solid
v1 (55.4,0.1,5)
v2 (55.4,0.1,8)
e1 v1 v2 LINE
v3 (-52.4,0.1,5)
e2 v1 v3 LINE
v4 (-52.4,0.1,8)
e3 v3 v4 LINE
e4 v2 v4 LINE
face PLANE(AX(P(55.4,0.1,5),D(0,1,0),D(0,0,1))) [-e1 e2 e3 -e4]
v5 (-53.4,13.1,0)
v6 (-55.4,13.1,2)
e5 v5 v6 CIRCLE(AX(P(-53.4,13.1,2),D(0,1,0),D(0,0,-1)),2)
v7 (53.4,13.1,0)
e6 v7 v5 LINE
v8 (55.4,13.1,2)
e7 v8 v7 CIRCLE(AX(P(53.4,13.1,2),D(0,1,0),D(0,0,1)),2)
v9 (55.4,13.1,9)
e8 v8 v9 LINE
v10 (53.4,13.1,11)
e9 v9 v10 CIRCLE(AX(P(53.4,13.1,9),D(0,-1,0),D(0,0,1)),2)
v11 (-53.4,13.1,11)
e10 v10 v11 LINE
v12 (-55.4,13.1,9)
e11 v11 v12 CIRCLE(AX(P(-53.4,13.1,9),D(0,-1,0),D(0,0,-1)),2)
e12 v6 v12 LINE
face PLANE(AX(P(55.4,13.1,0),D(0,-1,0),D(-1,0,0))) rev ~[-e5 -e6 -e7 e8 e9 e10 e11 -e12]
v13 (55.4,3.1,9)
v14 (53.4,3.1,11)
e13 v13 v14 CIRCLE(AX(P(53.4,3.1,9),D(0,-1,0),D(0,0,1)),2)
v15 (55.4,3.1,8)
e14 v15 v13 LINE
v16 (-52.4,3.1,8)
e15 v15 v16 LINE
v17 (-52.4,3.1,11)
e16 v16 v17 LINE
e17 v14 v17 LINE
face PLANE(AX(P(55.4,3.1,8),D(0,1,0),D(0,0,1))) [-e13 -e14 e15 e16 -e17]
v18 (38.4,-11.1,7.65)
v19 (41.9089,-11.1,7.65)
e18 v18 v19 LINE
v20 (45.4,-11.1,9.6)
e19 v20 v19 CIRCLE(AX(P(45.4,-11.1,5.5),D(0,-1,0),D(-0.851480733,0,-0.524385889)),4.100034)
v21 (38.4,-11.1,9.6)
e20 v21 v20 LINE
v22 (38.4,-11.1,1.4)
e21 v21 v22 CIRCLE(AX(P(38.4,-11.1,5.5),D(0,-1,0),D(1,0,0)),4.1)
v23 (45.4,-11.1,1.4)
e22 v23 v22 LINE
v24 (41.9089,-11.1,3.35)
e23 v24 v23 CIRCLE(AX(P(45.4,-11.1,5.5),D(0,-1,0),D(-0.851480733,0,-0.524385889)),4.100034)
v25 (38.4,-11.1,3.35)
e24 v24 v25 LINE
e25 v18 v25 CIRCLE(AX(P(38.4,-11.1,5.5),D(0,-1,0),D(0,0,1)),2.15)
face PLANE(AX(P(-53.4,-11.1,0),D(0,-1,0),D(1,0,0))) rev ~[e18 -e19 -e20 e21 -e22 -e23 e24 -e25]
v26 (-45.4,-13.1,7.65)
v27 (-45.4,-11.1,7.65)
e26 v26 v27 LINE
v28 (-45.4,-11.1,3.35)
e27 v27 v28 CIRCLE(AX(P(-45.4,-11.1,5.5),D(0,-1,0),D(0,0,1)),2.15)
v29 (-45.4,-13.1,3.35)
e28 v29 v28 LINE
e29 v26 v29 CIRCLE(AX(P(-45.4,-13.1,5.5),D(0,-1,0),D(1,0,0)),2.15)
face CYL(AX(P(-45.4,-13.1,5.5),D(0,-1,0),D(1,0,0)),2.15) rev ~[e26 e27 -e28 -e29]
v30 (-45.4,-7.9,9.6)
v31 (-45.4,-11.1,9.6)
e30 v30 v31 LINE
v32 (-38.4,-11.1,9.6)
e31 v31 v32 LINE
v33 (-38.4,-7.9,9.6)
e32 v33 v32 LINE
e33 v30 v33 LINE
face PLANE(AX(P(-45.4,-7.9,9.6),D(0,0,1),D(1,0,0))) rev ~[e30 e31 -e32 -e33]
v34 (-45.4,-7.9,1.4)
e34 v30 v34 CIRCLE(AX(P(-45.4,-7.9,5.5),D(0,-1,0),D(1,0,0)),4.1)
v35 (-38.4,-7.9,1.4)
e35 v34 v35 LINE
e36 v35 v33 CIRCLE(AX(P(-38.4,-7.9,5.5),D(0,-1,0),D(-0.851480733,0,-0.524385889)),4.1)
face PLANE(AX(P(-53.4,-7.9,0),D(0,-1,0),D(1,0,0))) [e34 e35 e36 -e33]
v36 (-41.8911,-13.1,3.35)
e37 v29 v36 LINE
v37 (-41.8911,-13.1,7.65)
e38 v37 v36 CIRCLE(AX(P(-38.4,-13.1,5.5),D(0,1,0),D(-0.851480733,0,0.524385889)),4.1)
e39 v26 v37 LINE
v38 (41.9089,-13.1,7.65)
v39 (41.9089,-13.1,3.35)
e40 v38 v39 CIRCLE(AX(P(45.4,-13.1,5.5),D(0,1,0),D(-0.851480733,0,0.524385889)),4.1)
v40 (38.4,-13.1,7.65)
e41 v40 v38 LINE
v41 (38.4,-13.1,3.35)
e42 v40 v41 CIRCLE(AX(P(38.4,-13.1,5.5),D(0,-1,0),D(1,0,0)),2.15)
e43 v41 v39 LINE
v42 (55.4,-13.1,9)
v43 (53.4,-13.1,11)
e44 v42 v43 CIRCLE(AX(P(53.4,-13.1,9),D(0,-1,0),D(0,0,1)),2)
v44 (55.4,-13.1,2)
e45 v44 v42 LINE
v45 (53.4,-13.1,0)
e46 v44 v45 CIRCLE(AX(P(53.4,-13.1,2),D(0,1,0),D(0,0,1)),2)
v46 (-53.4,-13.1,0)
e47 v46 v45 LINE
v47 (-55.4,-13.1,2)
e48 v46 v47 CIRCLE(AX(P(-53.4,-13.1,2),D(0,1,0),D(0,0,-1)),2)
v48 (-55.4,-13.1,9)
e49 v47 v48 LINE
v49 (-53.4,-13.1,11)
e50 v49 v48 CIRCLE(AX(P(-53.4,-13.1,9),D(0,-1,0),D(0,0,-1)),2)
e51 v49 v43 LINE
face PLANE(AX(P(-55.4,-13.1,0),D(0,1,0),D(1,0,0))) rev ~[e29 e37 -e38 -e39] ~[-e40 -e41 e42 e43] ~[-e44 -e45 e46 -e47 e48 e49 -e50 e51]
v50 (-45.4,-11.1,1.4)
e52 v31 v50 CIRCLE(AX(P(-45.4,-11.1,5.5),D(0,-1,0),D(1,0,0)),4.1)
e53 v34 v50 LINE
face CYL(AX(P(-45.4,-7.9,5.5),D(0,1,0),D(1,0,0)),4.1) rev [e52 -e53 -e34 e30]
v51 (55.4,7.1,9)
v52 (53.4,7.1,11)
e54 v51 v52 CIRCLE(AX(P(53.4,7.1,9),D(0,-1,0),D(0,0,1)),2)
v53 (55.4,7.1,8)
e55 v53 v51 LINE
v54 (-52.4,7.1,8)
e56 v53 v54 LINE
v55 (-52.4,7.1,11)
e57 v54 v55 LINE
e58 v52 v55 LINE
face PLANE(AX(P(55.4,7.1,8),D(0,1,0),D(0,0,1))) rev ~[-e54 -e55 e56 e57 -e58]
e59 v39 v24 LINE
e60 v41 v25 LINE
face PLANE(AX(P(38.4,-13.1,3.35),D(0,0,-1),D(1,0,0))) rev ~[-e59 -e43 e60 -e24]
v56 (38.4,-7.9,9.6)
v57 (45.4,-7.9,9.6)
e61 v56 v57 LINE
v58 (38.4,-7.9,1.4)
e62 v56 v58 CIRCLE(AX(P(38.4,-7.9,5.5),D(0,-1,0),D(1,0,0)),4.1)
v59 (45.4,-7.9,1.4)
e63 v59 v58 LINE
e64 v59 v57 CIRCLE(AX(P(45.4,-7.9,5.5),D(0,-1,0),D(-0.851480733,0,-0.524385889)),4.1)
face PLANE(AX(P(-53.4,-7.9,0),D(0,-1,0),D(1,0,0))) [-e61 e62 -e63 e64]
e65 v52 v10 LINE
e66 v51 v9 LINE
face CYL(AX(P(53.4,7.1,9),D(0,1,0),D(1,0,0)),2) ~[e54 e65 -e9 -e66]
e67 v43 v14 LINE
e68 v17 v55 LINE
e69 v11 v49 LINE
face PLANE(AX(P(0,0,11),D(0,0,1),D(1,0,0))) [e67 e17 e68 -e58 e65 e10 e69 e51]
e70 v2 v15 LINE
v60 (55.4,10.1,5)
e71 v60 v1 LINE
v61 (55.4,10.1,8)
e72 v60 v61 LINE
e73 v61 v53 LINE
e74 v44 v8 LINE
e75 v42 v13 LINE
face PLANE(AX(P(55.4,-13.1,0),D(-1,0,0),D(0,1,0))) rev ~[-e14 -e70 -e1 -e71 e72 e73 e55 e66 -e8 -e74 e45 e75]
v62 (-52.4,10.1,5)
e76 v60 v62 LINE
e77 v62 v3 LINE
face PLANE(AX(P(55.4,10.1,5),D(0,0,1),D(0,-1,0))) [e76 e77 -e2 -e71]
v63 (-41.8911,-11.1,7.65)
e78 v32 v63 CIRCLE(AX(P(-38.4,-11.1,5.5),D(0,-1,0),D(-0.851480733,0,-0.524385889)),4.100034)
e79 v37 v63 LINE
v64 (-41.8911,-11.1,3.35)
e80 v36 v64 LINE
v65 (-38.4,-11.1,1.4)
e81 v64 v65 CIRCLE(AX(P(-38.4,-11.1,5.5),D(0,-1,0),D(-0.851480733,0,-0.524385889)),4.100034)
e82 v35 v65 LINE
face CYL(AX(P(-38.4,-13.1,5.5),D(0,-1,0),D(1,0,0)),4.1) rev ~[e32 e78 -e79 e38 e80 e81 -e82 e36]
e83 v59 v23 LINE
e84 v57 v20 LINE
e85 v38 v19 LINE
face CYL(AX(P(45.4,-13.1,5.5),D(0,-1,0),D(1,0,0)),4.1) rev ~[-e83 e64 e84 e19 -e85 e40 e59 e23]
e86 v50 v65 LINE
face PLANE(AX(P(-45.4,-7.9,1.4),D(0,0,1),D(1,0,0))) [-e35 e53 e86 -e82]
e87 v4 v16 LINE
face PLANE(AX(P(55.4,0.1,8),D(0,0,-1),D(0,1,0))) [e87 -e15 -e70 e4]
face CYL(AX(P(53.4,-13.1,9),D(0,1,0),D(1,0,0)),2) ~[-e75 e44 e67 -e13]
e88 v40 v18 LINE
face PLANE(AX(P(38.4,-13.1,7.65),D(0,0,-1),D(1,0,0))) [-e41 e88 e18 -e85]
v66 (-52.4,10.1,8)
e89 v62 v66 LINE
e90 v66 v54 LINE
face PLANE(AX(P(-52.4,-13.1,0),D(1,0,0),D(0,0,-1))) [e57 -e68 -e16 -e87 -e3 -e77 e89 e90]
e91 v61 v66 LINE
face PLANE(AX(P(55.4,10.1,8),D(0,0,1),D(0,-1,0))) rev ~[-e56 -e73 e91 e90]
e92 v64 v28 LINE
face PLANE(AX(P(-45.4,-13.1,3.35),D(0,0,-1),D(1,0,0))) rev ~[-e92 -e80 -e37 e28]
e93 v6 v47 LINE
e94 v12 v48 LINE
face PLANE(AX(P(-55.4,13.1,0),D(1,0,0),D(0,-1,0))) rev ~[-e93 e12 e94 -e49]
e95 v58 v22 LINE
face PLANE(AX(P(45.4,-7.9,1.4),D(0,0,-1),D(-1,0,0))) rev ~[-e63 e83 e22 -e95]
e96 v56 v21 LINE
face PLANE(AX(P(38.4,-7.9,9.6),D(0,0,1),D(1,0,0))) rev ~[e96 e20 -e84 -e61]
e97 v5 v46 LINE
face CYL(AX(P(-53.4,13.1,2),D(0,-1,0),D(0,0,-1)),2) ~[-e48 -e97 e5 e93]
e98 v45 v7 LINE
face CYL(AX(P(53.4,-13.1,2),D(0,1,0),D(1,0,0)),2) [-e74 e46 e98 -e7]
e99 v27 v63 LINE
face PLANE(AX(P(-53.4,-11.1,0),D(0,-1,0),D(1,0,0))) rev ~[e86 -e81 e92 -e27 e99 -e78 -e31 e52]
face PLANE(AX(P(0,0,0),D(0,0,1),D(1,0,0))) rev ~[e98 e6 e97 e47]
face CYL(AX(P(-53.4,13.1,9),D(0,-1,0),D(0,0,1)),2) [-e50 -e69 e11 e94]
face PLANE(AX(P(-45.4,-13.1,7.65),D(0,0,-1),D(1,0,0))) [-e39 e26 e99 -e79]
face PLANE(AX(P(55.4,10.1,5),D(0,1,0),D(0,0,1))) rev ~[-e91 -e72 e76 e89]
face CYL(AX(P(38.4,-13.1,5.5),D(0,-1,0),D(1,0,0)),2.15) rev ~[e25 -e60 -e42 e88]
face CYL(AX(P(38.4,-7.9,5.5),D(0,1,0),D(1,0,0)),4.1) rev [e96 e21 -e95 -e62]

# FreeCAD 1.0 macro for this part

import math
import FreeCAD as App
import Part
import Sketcher

V = App.Vector


def edges_at(feature, points):
    """Names of the edges that pass closest to the given points."""
    edges = feature.Shape.Edges
    near = lambda p: min(range(len(edges)), key=lambda i: edges[i].distToShape(Part.Vertex(*p))[0])
    return sorted({f"Edge{near(p) + 1}" for p in points})

doc = App.newDocument("Part")
params = doc.addObject("Spreadsheet::Sheet", "Params")
for row, (alias, value) in enumerate([
    ("sketch1_width", "110.8 mm"),
    ("sketch1_height", "26.2 mm"),
    ("pad1_length", "11 mm"),
    ("sketch2_width", "3 mm"),
    ("sketch2_width2", "10 mm"),
    ("pocket1_length", "107.8 mm"),
    ("fillet_radius", "2 mm"),
    ("sketch3_radius", "4.1 mm"),
    ("sketch3_radius2", "2.15 mm"),
    ("pocket2_length", "5.2 mm"),
    ("sketch4_radius", "4.1 mm"),
    ("sketch4_width", "7 mm"),
    ("pocket3_length", "3.2 mm"),
], start=1):
    params.set(f"A{row}", alias)
    params.set(f"B{row}", "=" + value)
    params.setAlias(f"B{row}", alias)

body = doc.addObject("PartDesign::Body", "Body")

sketch1 = body.newObject("Sketcher::SketchObject", "Sketch")
sketch1.AttachmentSupport = (doc.getObject("XY_Plane"), [""])
sketch1.MapMode = "FlatFace"
sketch1.addGeometry(Part.LineSegment(V(55, -13, 0), V(55, 13, 0)), False)
sketch1.addGeometry(Part.LineSegment(V(55, 13, 0), V(-55, 13, 0)), False)
sketch1.addGeometry(Part.LineSegment(V(-55, 13, 0), V(-55, -13, 0)), False)
sketch1.addGeometry(Part.LineSegment(V(-55, -13, 0), V(55, -13, 0)), False)
sketch1.addConstraint(Sketcher.Constraint("Coincident", 0, 2, 1, 1))
sketch1.addConstraint(Sketcher.Constraint("Coincident", 1, 2, 2, 1))
sketch1.addConstraint(Sketcher.Constraint("Coincident", 2, 2, 3, 1))
sketch1.addConstraint(Sketcher.Constraint("Coincident", 3, 2, 0, 1))
sketch1.addConstraint(Sketcher.Constraint("Vertical", 0))
sketch1.addConstraint(Sketcher.Constraint("Horizontal", 1))
sketch1.addConstraint(Sketcher.Constraint("Vertical", 2))
sketch1.addConstraint(Sketcher.Constraint("Horizontal", 3))
sketch1.addConstraint(Sketcher.Constraint("Symmetric", 0, 2, 2, 2, -1, 1))
sketch1.addConstraint(Sketcher.Constraint("DistanceX", 1, 2, 1, 1, 110.8))
sketch1.addConstraint(Sketcher.Constraint("DistanceY", 0, 1, 0, 2, 26.2))
sketch1.setExpression("Constraints[9]", "Params.sketch1_width")
sketch1.setExpression("Constraints[10]", "Params.sketch1_height")
pad1 = body.newObject("PartDesign::Pad", "Pad")
pad1.Profile = sketch1
pad1.setExpression("Length", "Params.pad1_length")

sketch2 = body.newObject("Sketcher::SketchObject", "Sketch001")
sketch2.AttachmentSupport = (doc.getObject("YZ_Plane"), [""])
sketch2.MapMode = "FlatFace"
sketch2.AttachmentOffset = App.Placement(V(0, 0, 55.4), App.Rotation())
sketch2.addGeometry(Part.LineSegment(V(0.1, 5, 0), V(10.1, 5, 0)), False)
sketch2.addGeometry(Part.LineSegment(V(10.1, 5, 0), V(10.1, 8, 0)), False)
sketch2.addGeometry(Part.LineSegment(V(10.1, 8, 0), V(7.1, 8, 0)), False)
sketch2.addGeometry(Part.LineSegment(V(7.1, 8, 0), V(7.1, 11, 0)), False)
sketch2.addGeometry(Part.LineSegment(V(7.1, 11, 0), V(3.1, 11, 0)), False)
sketch2.addGeometry(Part.LineSegment(V(3.1, 11, 0), V(3.1, 8, 0)), False)
sketch2.addGeometry(Part.LineSegment(V(3.1, 8, 0), V(0.1, 8, 0)), False)
sketch2.addGeometry(Part.LineSegment(V(0.1, 8, 0), V(0.1, 5, 0)), False)
sketch2.addConstraint(Sketcher.Constraint("Coincident", 0, 2, 1, 1))
sketch2.addConstraint(Sketcher.Constraint("Coincident", 1, 2, 2, 1))
sketch2.addConstraint(Sketcher.Constraint("Coincident", 2, 2, 3, 1))
sketch2.addConstraint(Sketcher.Constraint("Coincident", 3, 2, 4, 1))
sketch2.addConstraint(Sketcher.Constraint("Coincident", 4, 2, 5, 1))
sketch2.addConstraint(Sketcher.Constraint("Coincident", 5, 2, 6, 1))
sketch2.addConstraint(Sketcher.Constraint("Coincident", 6, 2, 7, 1))
sketch2.addConstraint(Sketcher.Constraint("Coincident", 7, 2, 0, 1))
sketch2.addConstraint(Sketcher.Constraint("Horizontal", 0))
sketch2.addConstraint(Sketcher.Constraint("Vertical", 1))
sketch2.addConstraint(Sketcher.Constraint("Horizontal", 2))
sketch2.addConstraint(Sketcher.Constraint("Vertical", 3))
sketch2.addConstraint(Sketcher.Constraint("Horizontal", 4))
sketch2.addConstraint(Sketcher.Constraint("Vertical", 5))
sketch2.addConstraint(Sketcher.Constraint("Horizontal", 6))
sketch2.addConstraint(Sketcher.Constraint("Vertical", 7))
sketch2.addConstraint(Sketcher.Constraint("Horizontal", 2, 2, 5, 2))
sketch2.addConstraint(Sketcher.Constraint("Equal", 2, 6))
sketch2.addConstraint(Sketcher.Constraint("Equal", 6, 1))
sketch2.addConstraint(Sketcher.Constraint("Equal", 1, 3))
sketch2.addConstraint(Sketcher.Constraint("DistanceX", 2, 2, 2, 1, 3.0))
sketch2.addConstraint(Sketcher.Constraint("DistanceX", 0, 1, 0, 2, 10.0))
sketch2.addConstraint(Sketcher.Constraint("DistanceY", -1, 1, 0, 2, 5.0))
sketch2.addConstraint(Sketcher.Constraint("DistanceX", -1, 1, 0, 2, 10.1))
sketch2.setExpression("Constraints[20]", "Params.sketch2_width")
sketch2.setExpression("Constraints[21]", "Params.sketch2_width2")
pocket1 = body.newObject("PartDesign::Pocket", "Pocket")
pocket1.Profile = sketch2
pocket1.setExpression("Length", "Params.pocket1_length")
doc.recompute()

fillet = body.newObject("PartDesign::Fillet", "Fillet")
fillet.Base = (pocket1, edges_at(pocket1, [
    (55.4, 10.1, 11),
    (55.4, -5, 11),
    (-55.4, 0, 11),
    (55.4, 0, 0),
    (-55.4, 0, 0),
]))
fillet.setExpression("Radius", "Params.fillet_radius")

sketch3 = body.newObject("Sketcher::SketchObject", "Sketch002")
sketch3.AttachmentSupport = (doc.getObject("XZ_Plane"), [""])
sketch3.MapMode = "FlatFace"
sketch3.AttachmentOffset = App.Placement(V(0, 0, 13.1), App.Rotation())
sketch3.addGeometry(Part.ArcOfCircle(Part.Circle(V(45.4, 5.5, 0), V(0, 0, 1), 4.1), math.radians(-148), math.radians(148)), False)
sketch3.addGeometry(Part.LineSegment(V(41.9, 7.7, 0), V(38.4, 7.7, 0)), False)
sketch3.addGeometry(Part.ArcOfCircle(Part.Circle(V(38.4, 5.5, 0), V(0, 0, 1), 2.1), math.radians(90), math.radians(270)), False)
sketch3.addGeometry(Part.LineSegment(V(38.4, 3.4, 0), V(41.9, 3.4, 0)), False)
sketch3.addGeometry(Part.ArcOfCircle(Part.Circle(V(-38.4, 5.5, 0), V(0, 0, 1), 4.1), math.radians(-148), math.radians(148)), False)
sketch3.addGeometry(Part.LineSegment(V(-41.9, 7.7, 0), V(-45.4, 7.7, 0)), False)
sketch3.addGeometry(Part.ArcOfCircle(Part.Circle(V(-45.4, 5.5, 0), V(0, 0, 1), 2.1), math.radians(90), math.radians(270)), False)
sketch3.addGeometry(Part.LineSegment(V(-45.4, 3.4, 0), V(-41.9, 3.4, 0)), False)
sketch3.addConstraint(Sketcher.Constraint("Coincident", 0, 2, 1, 1))
sketch3.addConstraint(Sketcher.Constraint("Tangent", 1, 2, 2, 1))
sketch3.addConstraint(Sketcher.Constraint("Tangent", 2, 2, 3, 1))
sketch3.addConstraint(Sketcher.Constraint("Coincident", 3, 2, 0, 1))
sketch3.addConstraint(Sketcher.Constraint("Coincident", 4, 2, 5, 1))
sketch3.addConstraint(Sketcher.Constraint("Tangent", 5, 2, 6, 1))
sketch3.addConstraint(Sketcher.Constraint("Tangent", 6, 2, 7, 1))
sketch3.addConstraint(Sketcher.Constraint("Coincident", 7, 2, 4, 1))
sketch3.addConstraint(Sketcher.Constraint("Horizontal", 1))
sketch3.addConstraint(Sketcher.Constraint("Horizontal", 3))
sketch3.addConstraint(Sketcher.Constraint("Horizontal", 5))
sketch3.addConstraint(Sketcher.Constraint("Horizontal", 7))
sketch3.addConstraint(Sketcher.Constraint("Equal", 0, 4))
sketch3.addConstraint(Sketcher.Constraint("Equal", 2, 6))
sketch3.addConstraint(Sketcher.Constraint("Symmetric", 2, 3, 4, 3, -2))
sketch3.addConstraint(Sketcher.Constraint("Symmetric", 0, 3, 6, 3, -2))
sketch3.addConstraint(Sketcher.Constraint("Horizontal", 0, 3, 2, 3))
sketch3.addConstraint(Sketcher.Constraint("Radius", 0, 4.1))
sketch3.addConstraint(Sketcher.Constraint("Radius", 2, 2.15))
sketch3.addConstraint(Sketcher.Constraint("DistanceX", 2, 3, 0, 3, 7.0))
sketch3.addConstraint(Sketcher.Constraint("DistanceX", -1, 1, 0, 3, 45.4))
sketch3.addConstraint(Sketcher.Constraint("DistanceY", -1, 1, 0, 3, 5.5))
sketch3.setExpression("Constraints[17]", "Params.sketch3_radius")
sketch3.setExpression("Constraints[18]", "Params.sketch3_radius2")
pocket2 = body.newObject("PartDesign::Pocket", "Pocket001")
pocket2.Profile = sketch3
pocket2.setExpression("Length", "Params.pocket2_length")

sketch4 = body.newObject("Sketcher::SketchObject", "Sketch003")
sketch4.AttachmentSupport = (doc.getObject("XZ_Plane"), [""])
sketch4.MapMode = "FlatFace"
sketch4.AttachmentOffset = App.Placement(V(0, 0, 7.9), App.Rotation())
sketch4.addGeometry(Part.LineSegment(V(-41.909, 7.65, 0), V(-41.891, 7.65, 0)), False)
sketch4.addGeometry(Part.ArcOfCircle(Part.Circle(V(-38.4, 5.5, 0), V(0, 0, 1), 4.1), math.radians(90), math.radians(148)), False)
sketch4.addGeometry(Part.LineSegment(V(-38.4, 9.6, 0), V(-45.4, 9.6, 0)), False)
sketch4.addGeometry(Part.ArcOfCircle(Part.Circle(V(-45.4, 5.5, 0), V(0, 0, 1), 4.1), math.radians(90), math.radians(270)), False)
sketch4.addGeometry(Part.LineSegment(V(-45.4, 1.4, 0), V(-38.4, 1.4, 0)), False)
sketch4.addGeometry(Part.ArcOfCircle(Part.Circle(V(-38.4, 5.5, 0), V(0, 0, 1), 4.1), math.radians(-148), math.radians(-90)), False)
sketch4.addGeometry(Part.LineSegment(V(-41.891, 3.35, 0), V(-41.909, 3.35, 0)), False)
sketch4.addGeometry(Part.ArcOfCircle(Part.Circle(V(-45.4, 5.5, 0), V(0, 0, 1), 4.1), math.radians(-32), math.radians(32)), False)
sketch4.addGeometry(Part.LineSegment(V(41.891, 7.65, 0), V(41.909, 7.65, 0)), False)
sketch4.addGeometry(Part.ArcOfCircle(Part.Circle(V(45.4, 5.5, 0), V(0, 0, 1), 4.1), math.radians(90), math.radians(148)), False)
sketch4.addGeometry(Part.LineSegment(V(45.4, 9.6, 0), V(38.4, 9.6, 0)), False)
sketch4.addGeometry(Part.ArcOfCircle(Part.Circle(V(38.4, 5.5, 0), V(0, 0, 1), 4.1), math.radians(90), math.radians(270)), False)
sketch4.addGeometry(Part.LineSegment(V(38.4, 1.4, 0), V(45.4, 1.4, 0)), False)
sketch4.addGeometry(Part.ArcOfCircle(Part.Circle(V(45.4, 5.5, 0), V(0, 0, 1), 4.1), math.radians(-148), math.radians(-90)), False)
sketch4.addGeometry(Part.LineSegment(V(41.909, 3.35, 0), V(41.891, 3.35, 0)), False)
sketch4.addGeometry(Part.ArcOfCircle(Part.Circle(V(38.4, 5.5, 0), V(0, 0, 1), 4.1), math.radians(-32), math.radians(32)), False)
sketch4.addConstraint(Sketcher.Constraint("Coincident", 0, 2, 1, 2))
sketch4.addConstraint(Sketcher.Constraint("Tangent", 1, 1, 2, 1))
sketch4.addConstraint(Sketcher.Constraint("Tangent", 2, 2, 3, 1))
sketch4.addConstraint(Sketcher.Constraint("Tangent", 3, 2, 4, 1))
sketch4.addConstraint(Sketcher.Constraint("Tangent", 4, 2, 5, 2))
sketch4.addConstraint(Sketcher.Constraint("Coincident", 5, 1, 6, 1))
sketch4.addConstraint(Sketcher.Constraint("Coincident", 6, 2, 7, 1))
sketch4.addConstraint(Sketcher.Constraint("Coincident", 7, 2, 0, 1))
sketch4.addConstraint(Sketcher.Constraint("Coincident", 8, 2, 9, 2))
sketch4.addConstraint(Sketcher.Constraint("Tangent", 9, 1, 10, 1))
sketch4.addConstraint(Sketcher.Constraint("Tangent", 10, 2, 11, 1))
sketch4.addConstraint(Sketcher.Constraint("Tangent", 11, 2, 12, 1))
sketch4.addConstraint(Sketcher.Constraint("Tangent", 12, 2, 13, 2))
sketch4.addConstraint(Sketcher.Constraint("Coincident", 13, 1, 14, 1))
sketch4.addConstraint(Sketcher.Constraint("Coincident", 14, 2, 15, 1))
sketch4.addConstraint(Sketcher.Constraint("Coincident", 15, 2, 8, 1))
sketch4.addConstraint(Sketcher.Constraint("Horizontal", 0))
sketch4.addConstraint(Sketcher.Constraint("Horizontal", 2))
sketch4.addConstraint(Sketcher.Constraint("Horizontal", 4))
sketch4.addConstraint(Sketcher.Constraint("Horizontal", 6))
sketch4.addConstraint(Sketcher.Constraint("Horizontal", 8))
sketch4.addConstraint(Sketcher.Constraint("Horizontal", 10))
sketch4.addConstraint(Sketcher.Constraint("Horizontal", 12))
sketch4.addConstraint(Sketcher.Constraint("Horizontal", 14))
sketch4.addConstraint(Sketcher.Constraint("Coincident", 5, 3, 1, 3))
sketch4.addConstraint(Sketcher.Constraint("Coincident", 7, 3, 3, 3))
sketch4.addConstraint(Sketcher.Constraint("Coincident", 13, 3, 9, 3))
sketch4.addConstraint(Sketcher.Constraint("Coincident", 15, 3, 11, 3))
sketch4.addConstraint(Sketcher.Constraint("Equal", 1, 3))
sketch4.addConstraint(Sketcher.Constraint("Equal", 5, 7))
sketch4.addConstraint(Sketcher.Constraint("Equal", 7, 9))
sketch4.addConstraint(Sketcher.Constraint("Equal", 9, 11))
sketch4.addConstraint(Sketcher.Constraint("Equal", 13, 15))
sketch4.addConstraint(Sketcher.Constraint("Symmetric", 3, 3, 9, 3, -2))
sketch4.addConstraint(Sketcher.Constraint("Symmetric", 5, 1, 14, 2, -2))
sketch4.addConstraint(Sketcher.Constraint("Horizontal", 7, 2, 8, 2))
sketch4.addConstraint(Sketcher.Constraint("Vertical", 0, 2, 5, 1))
sketch4.addConstraint(Sketcher.Constraint("Radius", 1, 4.1))
sketch4.addConstraint(Sketcher.Constraint("DistanceX", 2, 2, 2, 1, 7.0))
sketch4.addConstraint(Sketcher.Constraint("DistanceX", 1, 3, -1, 1, 38.4))
sketch4.addConstraint(Sketcher.Constraint("DistanceY", -1, 1, 1, 3, 5.5))
sketch4.addConstraint(Sketcher.Constraint("DistanceY", -1, 1, 0, 2, 7.65))
sketch4.setExpression("Constraints[37]", "Params.sketch4_radius")
sketch4.setExpression("Constraints[38]", "Params.sketch4_width")
pocket3 = body.newObject("PartDesign::Pocket", "Pocket002")
pocket3.Profile = sketch4
pocket3.setExpression("Length", "Params.pocket3_length")
pocket3.Reversed = True

doc.recompute()
